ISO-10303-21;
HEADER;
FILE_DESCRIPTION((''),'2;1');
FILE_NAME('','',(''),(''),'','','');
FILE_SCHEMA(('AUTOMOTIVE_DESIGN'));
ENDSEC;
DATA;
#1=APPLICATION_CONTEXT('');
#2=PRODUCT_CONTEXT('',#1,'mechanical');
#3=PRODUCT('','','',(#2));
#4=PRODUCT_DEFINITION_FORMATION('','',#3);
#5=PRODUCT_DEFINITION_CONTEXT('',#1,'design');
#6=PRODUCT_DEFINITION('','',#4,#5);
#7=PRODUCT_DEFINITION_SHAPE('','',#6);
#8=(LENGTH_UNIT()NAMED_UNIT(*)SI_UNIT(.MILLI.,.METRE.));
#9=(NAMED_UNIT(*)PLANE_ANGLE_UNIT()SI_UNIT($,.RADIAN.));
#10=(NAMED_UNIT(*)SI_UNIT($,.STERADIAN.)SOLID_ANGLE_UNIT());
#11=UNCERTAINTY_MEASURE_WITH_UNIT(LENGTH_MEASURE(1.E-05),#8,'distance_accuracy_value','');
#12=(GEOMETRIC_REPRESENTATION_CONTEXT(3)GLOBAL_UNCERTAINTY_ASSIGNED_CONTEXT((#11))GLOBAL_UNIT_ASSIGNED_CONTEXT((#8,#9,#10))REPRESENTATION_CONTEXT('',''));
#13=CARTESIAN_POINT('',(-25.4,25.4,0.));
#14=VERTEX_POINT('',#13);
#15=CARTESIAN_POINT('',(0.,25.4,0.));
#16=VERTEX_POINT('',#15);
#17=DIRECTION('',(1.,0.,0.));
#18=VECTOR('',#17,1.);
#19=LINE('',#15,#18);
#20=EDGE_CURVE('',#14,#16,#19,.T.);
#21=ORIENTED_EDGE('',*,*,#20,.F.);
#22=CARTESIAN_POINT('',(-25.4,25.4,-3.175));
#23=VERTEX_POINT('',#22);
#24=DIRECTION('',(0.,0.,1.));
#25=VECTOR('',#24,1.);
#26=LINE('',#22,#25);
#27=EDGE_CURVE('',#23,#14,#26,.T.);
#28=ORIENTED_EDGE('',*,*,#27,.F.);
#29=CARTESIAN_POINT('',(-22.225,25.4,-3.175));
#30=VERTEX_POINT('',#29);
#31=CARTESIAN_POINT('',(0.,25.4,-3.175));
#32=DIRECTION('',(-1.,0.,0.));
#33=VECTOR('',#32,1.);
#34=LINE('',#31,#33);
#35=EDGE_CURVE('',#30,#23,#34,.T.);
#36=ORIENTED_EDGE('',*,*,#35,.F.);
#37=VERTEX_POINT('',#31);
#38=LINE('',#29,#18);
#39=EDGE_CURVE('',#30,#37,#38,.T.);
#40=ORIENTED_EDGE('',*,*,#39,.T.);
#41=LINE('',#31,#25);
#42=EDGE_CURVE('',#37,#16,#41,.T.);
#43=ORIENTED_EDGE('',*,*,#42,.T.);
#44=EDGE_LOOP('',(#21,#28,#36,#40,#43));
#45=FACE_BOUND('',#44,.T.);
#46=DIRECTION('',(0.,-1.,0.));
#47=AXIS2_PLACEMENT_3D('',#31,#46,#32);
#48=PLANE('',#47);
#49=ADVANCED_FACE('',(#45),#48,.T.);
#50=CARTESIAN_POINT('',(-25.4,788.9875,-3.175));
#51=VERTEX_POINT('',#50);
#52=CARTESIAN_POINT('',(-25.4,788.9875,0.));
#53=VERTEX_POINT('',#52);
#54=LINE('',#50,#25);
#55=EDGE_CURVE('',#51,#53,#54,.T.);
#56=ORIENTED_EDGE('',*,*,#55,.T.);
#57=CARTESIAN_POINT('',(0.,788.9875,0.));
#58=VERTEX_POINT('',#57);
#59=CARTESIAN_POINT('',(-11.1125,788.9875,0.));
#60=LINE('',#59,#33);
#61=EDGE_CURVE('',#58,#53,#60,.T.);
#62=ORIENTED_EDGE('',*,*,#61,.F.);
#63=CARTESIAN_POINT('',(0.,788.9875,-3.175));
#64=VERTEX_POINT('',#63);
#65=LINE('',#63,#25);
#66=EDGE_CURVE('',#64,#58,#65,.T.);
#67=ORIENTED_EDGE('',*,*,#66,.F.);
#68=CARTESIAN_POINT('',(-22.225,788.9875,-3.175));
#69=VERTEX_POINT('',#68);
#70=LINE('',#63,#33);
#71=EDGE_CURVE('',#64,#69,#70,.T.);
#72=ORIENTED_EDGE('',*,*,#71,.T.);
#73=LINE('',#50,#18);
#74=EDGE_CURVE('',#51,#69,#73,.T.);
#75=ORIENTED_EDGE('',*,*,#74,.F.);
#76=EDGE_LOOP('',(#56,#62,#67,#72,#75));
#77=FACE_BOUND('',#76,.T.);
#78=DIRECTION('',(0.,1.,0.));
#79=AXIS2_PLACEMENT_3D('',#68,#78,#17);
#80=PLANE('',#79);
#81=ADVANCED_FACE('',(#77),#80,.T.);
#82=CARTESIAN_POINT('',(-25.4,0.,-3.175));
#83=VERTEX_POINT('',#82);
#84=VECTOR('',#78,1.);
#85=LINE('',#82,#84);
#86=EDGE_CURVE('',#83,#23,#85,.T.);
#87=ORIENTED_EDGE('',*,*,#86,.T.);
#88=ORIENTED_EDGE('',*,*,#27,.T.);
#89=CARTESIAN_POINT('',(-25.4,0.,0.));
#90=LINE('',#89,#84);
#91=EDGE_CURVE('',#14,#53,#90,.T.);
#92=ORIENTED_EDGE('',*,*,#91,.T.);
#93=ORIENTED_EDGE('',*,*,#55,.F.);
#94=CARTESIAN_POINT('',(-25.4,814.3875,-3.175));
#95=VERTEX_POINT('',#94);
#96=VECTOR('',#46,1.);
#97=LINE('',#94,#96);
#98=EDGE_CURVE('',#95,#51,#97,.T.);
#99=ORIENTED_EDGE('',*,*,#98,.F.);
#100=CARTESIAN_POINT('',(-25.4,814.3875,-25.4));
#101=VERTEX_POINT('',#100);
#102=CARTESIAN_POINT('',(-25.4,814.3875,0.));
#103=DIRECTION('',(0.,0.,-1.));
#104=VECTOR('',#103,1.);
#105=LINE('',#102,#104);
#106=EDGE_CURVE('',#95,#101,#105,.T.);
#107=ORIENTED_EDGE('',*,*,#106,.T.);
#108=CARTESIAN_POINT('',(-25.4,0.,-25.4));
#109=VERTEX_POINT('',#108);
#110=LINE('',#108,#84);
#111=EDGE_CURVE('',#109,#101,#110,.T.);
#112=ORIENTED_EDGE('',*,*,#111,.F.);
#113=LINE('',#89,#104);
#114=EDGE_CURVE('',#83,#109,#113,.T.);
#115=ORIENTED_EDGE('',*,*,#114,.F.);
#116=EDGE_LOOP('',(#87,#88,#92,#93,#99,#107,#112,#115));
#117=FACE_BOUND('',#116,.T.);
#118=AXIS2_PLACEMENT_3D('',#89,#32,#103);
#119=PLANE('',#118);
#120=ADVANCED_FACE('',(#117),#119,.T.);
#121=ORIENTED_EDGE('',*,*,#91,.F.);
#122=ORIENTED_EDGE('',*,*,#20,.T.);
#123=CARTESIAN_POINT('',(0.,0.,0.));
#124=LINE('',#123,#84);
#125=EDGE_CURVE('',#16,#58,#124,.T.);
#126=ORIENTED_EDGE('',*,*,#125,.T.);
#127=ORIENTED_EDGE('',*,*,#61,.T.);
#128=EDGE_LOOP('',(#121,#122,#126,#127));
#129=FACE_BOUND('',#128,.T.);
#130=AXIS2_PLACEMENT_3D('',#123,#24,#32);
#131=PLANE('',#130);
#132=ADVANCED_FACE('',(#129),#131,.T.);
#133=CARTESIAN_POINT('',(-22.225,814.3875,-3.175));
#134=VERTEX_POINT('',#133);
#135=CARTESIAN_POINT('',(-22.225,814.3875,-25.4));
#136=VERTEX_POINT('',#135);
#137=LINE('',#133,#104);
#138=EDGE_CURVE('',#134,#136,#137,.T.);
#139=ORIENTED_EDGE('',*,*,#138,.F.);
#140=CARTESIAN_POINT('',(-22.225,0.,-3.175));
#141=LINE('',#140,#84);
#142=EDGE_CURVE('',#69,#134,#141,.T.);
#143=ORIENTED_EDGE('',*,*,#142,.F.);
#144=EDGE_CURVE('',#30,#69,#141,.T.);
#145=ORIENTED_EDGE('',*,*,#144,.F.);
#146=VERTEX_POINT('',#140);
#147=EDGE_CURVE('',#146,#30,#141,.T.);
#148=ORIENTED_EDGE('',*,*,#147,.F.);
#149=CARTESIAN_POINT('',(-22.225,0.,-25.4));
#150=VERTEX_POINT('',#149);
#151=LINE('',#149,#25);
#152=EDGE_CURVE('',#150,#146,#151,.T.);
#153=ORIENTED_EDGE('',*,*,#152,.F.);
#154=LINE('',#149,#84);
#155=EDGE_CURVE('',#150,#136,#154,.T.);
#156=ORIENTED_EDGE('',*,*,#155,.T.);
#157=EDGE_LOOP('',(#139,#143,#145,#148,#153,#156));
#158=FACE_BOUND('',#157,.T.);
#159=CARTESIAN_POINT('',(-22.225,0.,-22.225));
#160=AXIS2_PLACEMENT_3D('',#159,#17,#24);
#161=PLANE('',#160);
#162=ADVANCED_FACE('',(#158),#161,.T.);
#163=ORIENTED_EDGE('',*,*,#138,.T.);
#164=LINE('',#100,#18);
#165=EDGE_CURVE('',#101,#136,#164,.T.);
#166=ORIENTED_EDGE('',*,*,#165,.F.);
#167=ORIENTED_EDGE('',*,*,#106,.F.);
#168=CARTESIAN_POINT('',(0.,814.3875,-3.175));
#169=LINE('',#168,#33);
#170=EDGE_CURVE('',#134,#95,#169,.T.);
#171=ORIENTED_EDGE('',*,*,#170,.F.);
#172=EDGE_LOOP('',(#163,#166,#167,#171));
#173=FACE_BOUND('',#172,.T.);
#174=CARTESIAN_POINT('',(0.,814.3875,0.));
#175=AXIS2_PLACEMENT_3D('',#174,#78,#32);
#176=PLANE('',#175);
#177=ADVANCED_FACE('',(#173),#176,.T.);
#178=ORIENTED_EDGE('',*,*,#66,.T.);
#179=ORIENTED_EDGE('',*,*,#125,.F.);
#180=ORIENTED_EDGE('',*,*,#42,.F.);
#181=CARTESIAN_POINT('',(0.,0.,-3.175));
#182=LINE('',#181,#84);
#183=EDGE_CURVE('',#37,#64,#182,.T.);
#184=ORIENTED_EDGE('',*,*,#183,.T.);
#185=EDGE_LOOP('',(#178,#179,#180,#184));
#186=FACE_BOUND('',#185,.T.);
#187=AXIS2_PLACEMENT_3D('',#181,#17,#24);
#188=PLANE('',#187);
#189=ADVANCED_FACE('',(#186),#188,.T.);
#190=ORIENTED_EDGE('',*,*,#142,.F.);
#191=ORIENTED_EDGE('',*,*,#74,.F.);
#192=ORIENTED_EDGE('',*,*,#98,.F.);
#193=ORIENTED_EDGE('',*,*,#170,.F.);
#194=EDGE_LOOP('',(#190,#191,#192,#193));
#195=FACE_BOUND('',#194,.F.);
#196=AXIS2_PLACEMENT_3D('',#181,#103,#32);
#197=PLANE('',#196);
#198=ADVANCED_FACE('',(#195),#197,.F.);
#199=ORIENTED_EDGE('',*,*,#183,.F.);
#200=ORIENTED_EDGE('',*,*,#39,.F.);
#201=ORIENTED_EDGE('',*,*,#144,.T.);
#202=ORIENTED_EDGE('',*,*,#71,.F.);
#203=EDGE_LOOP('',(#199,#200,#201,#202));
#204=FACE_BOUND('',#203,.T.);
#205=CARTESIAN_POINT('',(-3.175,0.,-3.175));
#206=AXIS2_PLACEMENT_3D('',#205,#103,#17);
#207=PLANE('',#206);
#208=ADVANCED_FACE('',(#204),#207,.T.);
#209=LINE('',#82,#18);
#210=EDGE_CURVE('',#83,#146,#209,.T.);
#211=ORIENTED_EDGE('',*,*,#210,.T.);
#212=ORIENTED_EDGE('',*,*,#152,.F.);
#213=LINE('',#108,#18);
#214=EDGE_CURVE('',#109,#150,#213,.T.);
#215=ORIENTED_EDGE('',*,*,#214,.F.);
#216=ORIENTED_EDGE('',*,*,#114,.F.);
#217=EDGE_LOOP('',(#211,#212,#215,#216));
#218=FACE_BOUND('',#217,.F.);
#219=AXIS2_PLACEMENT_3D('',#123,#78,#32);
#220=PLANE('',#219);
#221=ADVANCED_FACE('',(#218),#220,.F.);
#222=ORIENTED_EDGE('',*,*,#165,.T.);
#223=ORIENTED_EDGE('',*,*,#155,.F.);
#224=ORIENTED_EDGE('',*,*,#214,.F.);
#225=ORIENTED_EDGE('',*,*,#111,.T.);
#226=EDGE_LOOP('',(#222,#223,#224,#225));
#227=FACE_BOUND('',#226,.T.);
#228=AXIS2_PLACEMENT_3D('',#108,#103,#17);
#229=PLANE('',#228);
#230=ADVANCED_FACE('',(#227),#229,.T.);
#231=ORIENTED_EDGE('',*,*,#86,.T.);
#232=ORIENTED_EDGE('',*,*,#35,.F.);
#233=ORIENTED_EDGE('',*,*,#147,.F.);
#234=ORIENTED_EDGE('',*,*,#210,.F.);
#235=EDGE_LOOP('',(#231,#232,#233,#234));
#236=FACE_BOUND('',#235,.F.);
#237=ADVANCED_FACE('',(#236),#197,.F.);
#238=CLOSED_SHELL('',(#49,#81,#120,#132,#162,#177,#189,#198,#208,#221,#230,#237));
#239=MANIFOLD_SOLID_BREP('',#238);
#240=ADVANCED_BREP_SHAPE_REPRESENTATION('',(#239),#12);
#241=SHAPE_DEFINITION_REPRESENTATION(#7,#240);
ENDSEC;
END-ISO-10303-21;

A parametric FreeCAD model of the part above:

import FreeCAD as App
import Part
import Sketcher
Q = App.Units.Quantity

doc = App.newDocument("Part")
body = doc.addObject("PartDesign::Body", "Body")

# Sketch on XZ plane
sketch1 = doc.addObject("Sketcher::SketchObject", "Sketch")
body.addObject(sketch1)
sketch1.AttachmentSupport = (doc.XZ_Plane, [""])
sketch1.MapMode = "FlatFace"
sketch1.addGeometry([
    Part.LineSegment(App.Vector(-25.4, 0, 0), App.Vector(0, 0, 0)),  # 0
    Part.LineSegment(App.Vector(0, 0, 0), App.Vector(0, -3.2, 0)),  # 1
    Part.LineSegment(App.Vector(0, -3.2, 0), App.Vector(-22.2, -3.2, 0)),  # 2
    Part.LineSegment(App.Vector(-22.2, -3.2, 0), App.Vector(-22.2, -25.4, 0)),  # 3
    Part.LineSegment(App.Vector(-22.2, -25.4, 0), App.Vector(-25.4, -25.4, 0)),  # 4
    Part.LineSegment(App.Vector(-25.4, -25.4, 0), App.Vector(-25.4, 0, 0)),  # 5
], False)
sketch1.addConstraint([
    Sketcher.Constraint("Coincident", 0, 2, 1, 1),
    Sketcher.Constraint("Coincident", 1, 2, 2, 1),
    Sketcher.Constraint("Coincident", 2, 2, 3, 1),
    Sketcher.Constraint("Coincident", 3, 2, 4, 1),
    Sketcher.Constraint("Coincident", 4, 2, 5, 1),
    Sketcher.Constraint("Coincident", 5, 2, 0, 1),
    Sketcher.Constraint("Horizontal", 0),
    Sketcher.Constraint("Vertical", 1),
    Sketcher.Constraint("Horizontal", 2),
    Sketcher.Constraint("Vertical", 3),
    Sketcher.Constraint("Horizontal", 4),
    Sketcher.Constraint("Vertical", 5),
    Sketcher.Constraint("Coincident", 0, 2, -1, 1),
    Sketcher.Constraint("Equal", 4, 1),
    Sketcher.Constraint("Equal", 2, 3),
    Sketcher.Constraint("DistanceX", 0, 1, 0, 2, Q("1 in")),
    Sketcher.Constraint("DistanceX", 4, 2, 4, 1, Q("0.125 in")),
])
pad1 = doc.addObject("PartDesign::Pad", "Pad")
body.addObject(pad1)
pad1.Profile = sketch1
pad1.Length = Q("32.0625 in")
pad1.Reversed = True

# Sketch on XY plane
sketch2 = doc.addObject("Sketcher::SketchObject", "Sketch001")
body.addObject(sketch2)
sketch2.AttachmentSupport = (doc.XY_Plane, [""])
sketch2.MapMode = "FlatFace"
sketch2.AttachmentOffset = App.Placement(App.Vector(0, 0, -0.125 * 25.4), App.Rotation())
sketch2.addGeometry([
    Part.LineSegment(App.Vector(0, 25, 0), App.Vector(0, 0, 0)),  # 0
    Part.LineSegment(App.Vector(0, 0, 0), App.Vector(-25, 0, 0)),  # 1
    Part.LineSegment(App.Vector(-25, 0, 0), App.Vector(-25, 25, 0)),  # 2
    Part.LineSegment(App.Vector(-25, 25, 0), App.Vector(0, 25, 0)),  # 3
    Part.LineSegment(App.Vector(0, 814, 0), App.Vector(0, 789, 0)),  # 4
    Part.LineSegment(App.Vector(0, 789, 0), App.Vector(-25, 789, 0)),  # 5
    Part.LineSegment(App.Vector(-25, 789, 0), App.Vector(-25, 814, 0)),  # 6
    Part.LineSegment(App.Vector(-25, 814, 0), App.Vector(0, 814, 0)),  # 7
], False)
sketch2.addConstraint([
    Sketcher.Constraint("Coincident", 0, 2, 1, 1),
    Sketcher.Constraint("Coincident", 1, 2, 2, 1),
    Sketcher.Constraint("Coincident", 2, 2, 3, 1),
    Sketcher.Constraint("Coincident", 3, 2, 0, 1),
    Sketcher.Constraint("Coincident", 4, 2, 5, 1),
    Sketcher.Constraint("Coincident", 5, 2, 6, 1),
    Sketcher.Constraint("Coincident", 6, 2, 7, 1),
    Sketcher.Constraint("Coincident", 7, 2, 4, 1),
    Sketcher.Constraint("Vertical", 0),
    Sketcher.Constraint("Horizontal", 1),
    Sketcher.Constraint("Vertical", 2),
    Sketcher.Constraint("Horizontal", 3),
    Sketcher.Constraint("Vertical", 4),
    Sketcher.Constraint("Horizontal", 5),
    Sketcher.Constraint("Vertical", 6),
    Sketcher.Constraint("Horizontal", 7),
    Sketcher.Constraint("Coincident", 0, 2, -1, 1),
    Sketcher.Constraint("PointOnObject", 4, 2, -2),
    Sketcher.Constraint("Vertical", 2, 2, 5, 2),
    Sketcher.Constraint("Equal", 7, 0),
    Sketcher.Constraint("Equal", 2, 4),
    Sketcher.Constraint("DistanceX", 1, 2, 1, 1, Q("1 in")),
    Sketcher.Constraint("DistanceY", -1, 1, 4, 2, Q("31.0625 in")),
])
pocket1 = doc.addObject("PartDesign::Pocket", "Pocket")
body.addObject(pocket1)
pocket1.Profile = sketch2
pocket1.Length = Q("1 in")
pocket1.Reversed = True

doc.recompute()
